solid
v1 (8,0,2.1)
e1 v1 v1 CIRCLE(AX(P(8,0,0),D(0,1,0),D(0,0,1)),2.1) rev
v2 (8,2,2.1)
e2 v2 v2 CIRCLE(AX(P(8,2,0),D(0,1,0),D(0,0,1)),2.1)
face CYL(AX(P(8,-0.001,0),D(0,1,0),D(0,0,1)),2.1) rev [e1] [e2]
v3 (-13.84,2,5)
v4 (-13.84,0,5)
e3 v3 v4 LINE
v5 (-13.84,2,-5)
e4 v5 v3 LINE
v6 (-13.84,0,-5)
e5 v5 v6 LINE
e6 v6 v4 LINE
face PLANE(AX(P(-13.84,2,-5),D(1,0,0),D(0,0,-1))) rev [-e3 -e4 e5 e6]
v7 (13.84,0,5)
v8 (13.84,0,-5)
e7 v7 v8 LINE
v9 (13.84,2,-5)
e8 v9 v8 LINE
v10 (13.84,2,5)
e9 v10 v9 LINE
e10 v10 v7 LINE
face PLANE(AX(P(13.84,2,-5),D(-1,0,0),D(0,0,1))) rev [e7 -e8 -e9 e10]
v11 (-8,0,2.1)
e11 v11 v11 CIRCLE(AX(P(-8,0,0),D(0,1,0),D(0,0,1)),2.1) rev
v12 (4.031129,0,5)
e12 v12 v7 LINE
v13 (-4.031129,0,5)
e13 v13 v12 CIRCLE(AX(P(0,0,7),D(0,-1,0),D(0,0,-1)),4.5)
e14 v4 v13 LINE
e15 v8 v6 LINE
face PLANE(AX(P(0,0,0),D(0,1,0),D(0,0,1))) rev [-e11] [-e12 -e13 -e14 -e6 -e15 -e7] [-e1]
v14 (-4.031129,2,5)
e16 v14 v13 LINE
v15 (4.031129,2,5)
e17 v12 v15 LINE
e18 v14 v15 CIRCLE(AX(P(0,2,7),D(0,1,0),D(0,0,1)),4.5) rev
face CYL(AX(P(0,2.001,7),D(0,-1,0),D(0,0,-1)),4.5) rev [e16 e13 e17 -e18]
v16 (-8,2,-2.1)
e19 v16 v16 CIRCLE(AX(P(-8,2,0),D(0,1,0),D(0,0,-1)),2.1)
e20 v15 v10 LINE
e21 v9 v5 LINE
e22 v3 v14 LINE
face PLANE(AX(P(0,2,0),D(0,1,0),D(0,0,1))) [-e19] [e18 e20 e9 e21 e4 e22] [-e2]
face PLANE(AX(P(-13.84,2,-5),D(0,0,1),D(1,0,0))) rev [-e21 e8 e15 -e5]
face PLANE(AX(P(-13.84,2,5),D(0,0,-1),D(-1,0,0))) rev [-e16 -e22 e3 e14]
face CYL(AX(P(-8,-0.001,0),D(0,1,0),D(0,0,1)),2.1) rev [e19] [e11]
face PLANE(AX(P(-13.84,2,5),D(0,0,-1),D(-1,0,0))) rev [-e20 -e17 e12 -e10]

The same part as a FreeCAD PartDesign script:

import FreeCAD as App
import Part
import Sketcher

V = App.Vector


def add_polygon(sketch, points):
    """Adds a closed chain of lines whose ends are joined by coincident constraints."""
    first, n = sketch.GeometryCount, len(points)
    for a, b in zip(points, points[1:] + points[:1]):
        sketch.addGeometry(Part.LineSegment(App.Vector(*a, 0), App.Vector(*b, 0)), False)
    for i in range(n):
        sketch.addConstraint(Sketcher.Constraint("Coincident", first + i, 2, first + (i + 1) % n, 1))

doc = App.newDocument("Part")
params = doc.addObject("Spreadsheet::Sheet", "Params")
for row, (alias, value) in enumerate([
    ("sketch1_height", "10 mm"),
    ("sketch1_width", "27.68 mm"),
    ("pad1_length", "2 mm"),
    ("sketch2_diameter", "4.2 mm"),
    ("sketch3_diameter", "4.2 mm"),
    ("sketch4_diameter", "9 mm"),
    ("pocket3_length", "2 mm"),
], start=1):
    params.set(f"A{row}", alias)
    params.set(f"B{row}", "=" + value)
    params.setAlias(f"B{row}", alias)

body = doc.addObject("PartDesign::Body", "Body")

# Sketch on XZ plane
sketch1 = body.newObject("Sketcher::SketchObject", "Sketch")
sketch1.AttachmentSupport = (doc.getObject("XZ_Plane"), [""])
sketch1.MapMode = "FlatFace"
add_polygon(sketch1, [(-14, -5), (-14, 5), (14, 5), (14, -5)])  # lines 0-3
sketch1.addConstraint([
    Sketcher.Constraint("Vertical", 0),
    Sketcher.Constraint("Horizontal", 1),
    Sketcher.Constraint("Vertical", 2),
    Sketcher.Constraint("Horizontal", 3),
    Sketcher.Constraint("Symmetric", 0, 2, 2, 2, -1, 1),
    Sketcher.Constraint("DistanceY", 0, 1, 0, 2, 10.0),
    Sketcher.Constraint("DistanceX", 1, 1, 1, 2, 27.68),
])
sketch1.setExpression("Constraints[9]", "Params.sketch1_height")
sketch1.setExpression("Constraints[10]", "Params.sketch1_width")
pad1 = body.newObject("PartDesign::Pad", "Pad")
pad1.Profile = sketch1
pad1.setExpression("Length", "Params.pad1_length")
pad1.Reversed = True

# Sketch on XZ plane
sketch2 = body.newObject("Sketcher::SketchObject", "Sketch001")
sketch2.AttachmentSupport = (doc.getObject("XZ_Plane"), [""])
sketch2.MapMode = "FlatFace"
sketch2.AttachmentOffset = App.Placement(V(0, 0, -2), App.Rotation())
sketch2.addGeometry(Part.Circle(V(8, 0, 0), V(0, 0, 1), 2.1), False)
sketch2.addConstraint([
    Sketcher.Constraint("PointOnObject", 0, 3, -1),
    Sketcher.Constraint("Diameter", 0, 4.2),
    Sketcher.Constraint("DistanceX", -1, 1, 0, 3, 8.0),
])
sketch2.setExpression("Constraints[1]", "Params.sketch2_diameter")
pocket1 = body.newObject("PartDesign::Pocket", "Pocket")
pocket1.Profile = sketch2
pocket1.Type = "UpToFirst"
pocket1.Reversed = True

# Sketch on XZ plane
sketch3 = body.newObject("Sketcher::SketchObject", "Sketch002")
sketch3.AttachmentSupport = (doc.getObject("XZ_Plane"), [""])
sketch3.MapMode = "FlatFace"
sketch3.AttachmentOffset = App.Placement(V(0, 0, -2), App.Rotation())
sketch3.addGeometry(Part.Circle(V(-8, 0, 0), V(0, 0, 1), 2.1), False)
sketch3.addConstraint([
    Sketcher.Constraint("PointOnObject", 0, 3, -1),
    Sketcher.Constraint("Diameter", 0, 4.2),
    Sketcher.Constraint("DistanceX", 0, 3, -1, 1, 8.0),
])
sketch3.setExpression("Constraints[1]", "Params.sketch3_diameter")
pocket2 = body.newObject("PartDesign::Pocket", "Pocket001")
pocket2.Profile = sketch3
pocket2.Type = "UpToFirst"
pocket2.Reversed = True

# Sketch on XZ plane
sketch4 = body.newObject("Sketcher::SketchObject", "Sketch003")
sketch4.AttachmentSupport = (doc.getObject("XZ_Plane"), [""])
sketch4.MapMode = "FlatFace"
sketch4.addGeometry(Part.Circle(V(0, 7, 0), V(0, 0, 1), 4.5), False)
sketch4.addConstraint([
    Sketcher.Constraint("PointOnObject", 0, 3, -2),
    Sketcher.Constraint("Diameter", 0, 9.0),
    Sketcher.Constraint("DistanceY", -1, 1, 0, 3, 7.0),
])
sketch4.setExpression("Constraints[1]", "Params.sketch4_diameter")
pocket3 = body.newObject("PartDesign::Pocket", "Pocket002")
pocket3.Profile = sketch4
pocket3.setExpression("Length", "Params.pocket3_length")

doc.recompute()
